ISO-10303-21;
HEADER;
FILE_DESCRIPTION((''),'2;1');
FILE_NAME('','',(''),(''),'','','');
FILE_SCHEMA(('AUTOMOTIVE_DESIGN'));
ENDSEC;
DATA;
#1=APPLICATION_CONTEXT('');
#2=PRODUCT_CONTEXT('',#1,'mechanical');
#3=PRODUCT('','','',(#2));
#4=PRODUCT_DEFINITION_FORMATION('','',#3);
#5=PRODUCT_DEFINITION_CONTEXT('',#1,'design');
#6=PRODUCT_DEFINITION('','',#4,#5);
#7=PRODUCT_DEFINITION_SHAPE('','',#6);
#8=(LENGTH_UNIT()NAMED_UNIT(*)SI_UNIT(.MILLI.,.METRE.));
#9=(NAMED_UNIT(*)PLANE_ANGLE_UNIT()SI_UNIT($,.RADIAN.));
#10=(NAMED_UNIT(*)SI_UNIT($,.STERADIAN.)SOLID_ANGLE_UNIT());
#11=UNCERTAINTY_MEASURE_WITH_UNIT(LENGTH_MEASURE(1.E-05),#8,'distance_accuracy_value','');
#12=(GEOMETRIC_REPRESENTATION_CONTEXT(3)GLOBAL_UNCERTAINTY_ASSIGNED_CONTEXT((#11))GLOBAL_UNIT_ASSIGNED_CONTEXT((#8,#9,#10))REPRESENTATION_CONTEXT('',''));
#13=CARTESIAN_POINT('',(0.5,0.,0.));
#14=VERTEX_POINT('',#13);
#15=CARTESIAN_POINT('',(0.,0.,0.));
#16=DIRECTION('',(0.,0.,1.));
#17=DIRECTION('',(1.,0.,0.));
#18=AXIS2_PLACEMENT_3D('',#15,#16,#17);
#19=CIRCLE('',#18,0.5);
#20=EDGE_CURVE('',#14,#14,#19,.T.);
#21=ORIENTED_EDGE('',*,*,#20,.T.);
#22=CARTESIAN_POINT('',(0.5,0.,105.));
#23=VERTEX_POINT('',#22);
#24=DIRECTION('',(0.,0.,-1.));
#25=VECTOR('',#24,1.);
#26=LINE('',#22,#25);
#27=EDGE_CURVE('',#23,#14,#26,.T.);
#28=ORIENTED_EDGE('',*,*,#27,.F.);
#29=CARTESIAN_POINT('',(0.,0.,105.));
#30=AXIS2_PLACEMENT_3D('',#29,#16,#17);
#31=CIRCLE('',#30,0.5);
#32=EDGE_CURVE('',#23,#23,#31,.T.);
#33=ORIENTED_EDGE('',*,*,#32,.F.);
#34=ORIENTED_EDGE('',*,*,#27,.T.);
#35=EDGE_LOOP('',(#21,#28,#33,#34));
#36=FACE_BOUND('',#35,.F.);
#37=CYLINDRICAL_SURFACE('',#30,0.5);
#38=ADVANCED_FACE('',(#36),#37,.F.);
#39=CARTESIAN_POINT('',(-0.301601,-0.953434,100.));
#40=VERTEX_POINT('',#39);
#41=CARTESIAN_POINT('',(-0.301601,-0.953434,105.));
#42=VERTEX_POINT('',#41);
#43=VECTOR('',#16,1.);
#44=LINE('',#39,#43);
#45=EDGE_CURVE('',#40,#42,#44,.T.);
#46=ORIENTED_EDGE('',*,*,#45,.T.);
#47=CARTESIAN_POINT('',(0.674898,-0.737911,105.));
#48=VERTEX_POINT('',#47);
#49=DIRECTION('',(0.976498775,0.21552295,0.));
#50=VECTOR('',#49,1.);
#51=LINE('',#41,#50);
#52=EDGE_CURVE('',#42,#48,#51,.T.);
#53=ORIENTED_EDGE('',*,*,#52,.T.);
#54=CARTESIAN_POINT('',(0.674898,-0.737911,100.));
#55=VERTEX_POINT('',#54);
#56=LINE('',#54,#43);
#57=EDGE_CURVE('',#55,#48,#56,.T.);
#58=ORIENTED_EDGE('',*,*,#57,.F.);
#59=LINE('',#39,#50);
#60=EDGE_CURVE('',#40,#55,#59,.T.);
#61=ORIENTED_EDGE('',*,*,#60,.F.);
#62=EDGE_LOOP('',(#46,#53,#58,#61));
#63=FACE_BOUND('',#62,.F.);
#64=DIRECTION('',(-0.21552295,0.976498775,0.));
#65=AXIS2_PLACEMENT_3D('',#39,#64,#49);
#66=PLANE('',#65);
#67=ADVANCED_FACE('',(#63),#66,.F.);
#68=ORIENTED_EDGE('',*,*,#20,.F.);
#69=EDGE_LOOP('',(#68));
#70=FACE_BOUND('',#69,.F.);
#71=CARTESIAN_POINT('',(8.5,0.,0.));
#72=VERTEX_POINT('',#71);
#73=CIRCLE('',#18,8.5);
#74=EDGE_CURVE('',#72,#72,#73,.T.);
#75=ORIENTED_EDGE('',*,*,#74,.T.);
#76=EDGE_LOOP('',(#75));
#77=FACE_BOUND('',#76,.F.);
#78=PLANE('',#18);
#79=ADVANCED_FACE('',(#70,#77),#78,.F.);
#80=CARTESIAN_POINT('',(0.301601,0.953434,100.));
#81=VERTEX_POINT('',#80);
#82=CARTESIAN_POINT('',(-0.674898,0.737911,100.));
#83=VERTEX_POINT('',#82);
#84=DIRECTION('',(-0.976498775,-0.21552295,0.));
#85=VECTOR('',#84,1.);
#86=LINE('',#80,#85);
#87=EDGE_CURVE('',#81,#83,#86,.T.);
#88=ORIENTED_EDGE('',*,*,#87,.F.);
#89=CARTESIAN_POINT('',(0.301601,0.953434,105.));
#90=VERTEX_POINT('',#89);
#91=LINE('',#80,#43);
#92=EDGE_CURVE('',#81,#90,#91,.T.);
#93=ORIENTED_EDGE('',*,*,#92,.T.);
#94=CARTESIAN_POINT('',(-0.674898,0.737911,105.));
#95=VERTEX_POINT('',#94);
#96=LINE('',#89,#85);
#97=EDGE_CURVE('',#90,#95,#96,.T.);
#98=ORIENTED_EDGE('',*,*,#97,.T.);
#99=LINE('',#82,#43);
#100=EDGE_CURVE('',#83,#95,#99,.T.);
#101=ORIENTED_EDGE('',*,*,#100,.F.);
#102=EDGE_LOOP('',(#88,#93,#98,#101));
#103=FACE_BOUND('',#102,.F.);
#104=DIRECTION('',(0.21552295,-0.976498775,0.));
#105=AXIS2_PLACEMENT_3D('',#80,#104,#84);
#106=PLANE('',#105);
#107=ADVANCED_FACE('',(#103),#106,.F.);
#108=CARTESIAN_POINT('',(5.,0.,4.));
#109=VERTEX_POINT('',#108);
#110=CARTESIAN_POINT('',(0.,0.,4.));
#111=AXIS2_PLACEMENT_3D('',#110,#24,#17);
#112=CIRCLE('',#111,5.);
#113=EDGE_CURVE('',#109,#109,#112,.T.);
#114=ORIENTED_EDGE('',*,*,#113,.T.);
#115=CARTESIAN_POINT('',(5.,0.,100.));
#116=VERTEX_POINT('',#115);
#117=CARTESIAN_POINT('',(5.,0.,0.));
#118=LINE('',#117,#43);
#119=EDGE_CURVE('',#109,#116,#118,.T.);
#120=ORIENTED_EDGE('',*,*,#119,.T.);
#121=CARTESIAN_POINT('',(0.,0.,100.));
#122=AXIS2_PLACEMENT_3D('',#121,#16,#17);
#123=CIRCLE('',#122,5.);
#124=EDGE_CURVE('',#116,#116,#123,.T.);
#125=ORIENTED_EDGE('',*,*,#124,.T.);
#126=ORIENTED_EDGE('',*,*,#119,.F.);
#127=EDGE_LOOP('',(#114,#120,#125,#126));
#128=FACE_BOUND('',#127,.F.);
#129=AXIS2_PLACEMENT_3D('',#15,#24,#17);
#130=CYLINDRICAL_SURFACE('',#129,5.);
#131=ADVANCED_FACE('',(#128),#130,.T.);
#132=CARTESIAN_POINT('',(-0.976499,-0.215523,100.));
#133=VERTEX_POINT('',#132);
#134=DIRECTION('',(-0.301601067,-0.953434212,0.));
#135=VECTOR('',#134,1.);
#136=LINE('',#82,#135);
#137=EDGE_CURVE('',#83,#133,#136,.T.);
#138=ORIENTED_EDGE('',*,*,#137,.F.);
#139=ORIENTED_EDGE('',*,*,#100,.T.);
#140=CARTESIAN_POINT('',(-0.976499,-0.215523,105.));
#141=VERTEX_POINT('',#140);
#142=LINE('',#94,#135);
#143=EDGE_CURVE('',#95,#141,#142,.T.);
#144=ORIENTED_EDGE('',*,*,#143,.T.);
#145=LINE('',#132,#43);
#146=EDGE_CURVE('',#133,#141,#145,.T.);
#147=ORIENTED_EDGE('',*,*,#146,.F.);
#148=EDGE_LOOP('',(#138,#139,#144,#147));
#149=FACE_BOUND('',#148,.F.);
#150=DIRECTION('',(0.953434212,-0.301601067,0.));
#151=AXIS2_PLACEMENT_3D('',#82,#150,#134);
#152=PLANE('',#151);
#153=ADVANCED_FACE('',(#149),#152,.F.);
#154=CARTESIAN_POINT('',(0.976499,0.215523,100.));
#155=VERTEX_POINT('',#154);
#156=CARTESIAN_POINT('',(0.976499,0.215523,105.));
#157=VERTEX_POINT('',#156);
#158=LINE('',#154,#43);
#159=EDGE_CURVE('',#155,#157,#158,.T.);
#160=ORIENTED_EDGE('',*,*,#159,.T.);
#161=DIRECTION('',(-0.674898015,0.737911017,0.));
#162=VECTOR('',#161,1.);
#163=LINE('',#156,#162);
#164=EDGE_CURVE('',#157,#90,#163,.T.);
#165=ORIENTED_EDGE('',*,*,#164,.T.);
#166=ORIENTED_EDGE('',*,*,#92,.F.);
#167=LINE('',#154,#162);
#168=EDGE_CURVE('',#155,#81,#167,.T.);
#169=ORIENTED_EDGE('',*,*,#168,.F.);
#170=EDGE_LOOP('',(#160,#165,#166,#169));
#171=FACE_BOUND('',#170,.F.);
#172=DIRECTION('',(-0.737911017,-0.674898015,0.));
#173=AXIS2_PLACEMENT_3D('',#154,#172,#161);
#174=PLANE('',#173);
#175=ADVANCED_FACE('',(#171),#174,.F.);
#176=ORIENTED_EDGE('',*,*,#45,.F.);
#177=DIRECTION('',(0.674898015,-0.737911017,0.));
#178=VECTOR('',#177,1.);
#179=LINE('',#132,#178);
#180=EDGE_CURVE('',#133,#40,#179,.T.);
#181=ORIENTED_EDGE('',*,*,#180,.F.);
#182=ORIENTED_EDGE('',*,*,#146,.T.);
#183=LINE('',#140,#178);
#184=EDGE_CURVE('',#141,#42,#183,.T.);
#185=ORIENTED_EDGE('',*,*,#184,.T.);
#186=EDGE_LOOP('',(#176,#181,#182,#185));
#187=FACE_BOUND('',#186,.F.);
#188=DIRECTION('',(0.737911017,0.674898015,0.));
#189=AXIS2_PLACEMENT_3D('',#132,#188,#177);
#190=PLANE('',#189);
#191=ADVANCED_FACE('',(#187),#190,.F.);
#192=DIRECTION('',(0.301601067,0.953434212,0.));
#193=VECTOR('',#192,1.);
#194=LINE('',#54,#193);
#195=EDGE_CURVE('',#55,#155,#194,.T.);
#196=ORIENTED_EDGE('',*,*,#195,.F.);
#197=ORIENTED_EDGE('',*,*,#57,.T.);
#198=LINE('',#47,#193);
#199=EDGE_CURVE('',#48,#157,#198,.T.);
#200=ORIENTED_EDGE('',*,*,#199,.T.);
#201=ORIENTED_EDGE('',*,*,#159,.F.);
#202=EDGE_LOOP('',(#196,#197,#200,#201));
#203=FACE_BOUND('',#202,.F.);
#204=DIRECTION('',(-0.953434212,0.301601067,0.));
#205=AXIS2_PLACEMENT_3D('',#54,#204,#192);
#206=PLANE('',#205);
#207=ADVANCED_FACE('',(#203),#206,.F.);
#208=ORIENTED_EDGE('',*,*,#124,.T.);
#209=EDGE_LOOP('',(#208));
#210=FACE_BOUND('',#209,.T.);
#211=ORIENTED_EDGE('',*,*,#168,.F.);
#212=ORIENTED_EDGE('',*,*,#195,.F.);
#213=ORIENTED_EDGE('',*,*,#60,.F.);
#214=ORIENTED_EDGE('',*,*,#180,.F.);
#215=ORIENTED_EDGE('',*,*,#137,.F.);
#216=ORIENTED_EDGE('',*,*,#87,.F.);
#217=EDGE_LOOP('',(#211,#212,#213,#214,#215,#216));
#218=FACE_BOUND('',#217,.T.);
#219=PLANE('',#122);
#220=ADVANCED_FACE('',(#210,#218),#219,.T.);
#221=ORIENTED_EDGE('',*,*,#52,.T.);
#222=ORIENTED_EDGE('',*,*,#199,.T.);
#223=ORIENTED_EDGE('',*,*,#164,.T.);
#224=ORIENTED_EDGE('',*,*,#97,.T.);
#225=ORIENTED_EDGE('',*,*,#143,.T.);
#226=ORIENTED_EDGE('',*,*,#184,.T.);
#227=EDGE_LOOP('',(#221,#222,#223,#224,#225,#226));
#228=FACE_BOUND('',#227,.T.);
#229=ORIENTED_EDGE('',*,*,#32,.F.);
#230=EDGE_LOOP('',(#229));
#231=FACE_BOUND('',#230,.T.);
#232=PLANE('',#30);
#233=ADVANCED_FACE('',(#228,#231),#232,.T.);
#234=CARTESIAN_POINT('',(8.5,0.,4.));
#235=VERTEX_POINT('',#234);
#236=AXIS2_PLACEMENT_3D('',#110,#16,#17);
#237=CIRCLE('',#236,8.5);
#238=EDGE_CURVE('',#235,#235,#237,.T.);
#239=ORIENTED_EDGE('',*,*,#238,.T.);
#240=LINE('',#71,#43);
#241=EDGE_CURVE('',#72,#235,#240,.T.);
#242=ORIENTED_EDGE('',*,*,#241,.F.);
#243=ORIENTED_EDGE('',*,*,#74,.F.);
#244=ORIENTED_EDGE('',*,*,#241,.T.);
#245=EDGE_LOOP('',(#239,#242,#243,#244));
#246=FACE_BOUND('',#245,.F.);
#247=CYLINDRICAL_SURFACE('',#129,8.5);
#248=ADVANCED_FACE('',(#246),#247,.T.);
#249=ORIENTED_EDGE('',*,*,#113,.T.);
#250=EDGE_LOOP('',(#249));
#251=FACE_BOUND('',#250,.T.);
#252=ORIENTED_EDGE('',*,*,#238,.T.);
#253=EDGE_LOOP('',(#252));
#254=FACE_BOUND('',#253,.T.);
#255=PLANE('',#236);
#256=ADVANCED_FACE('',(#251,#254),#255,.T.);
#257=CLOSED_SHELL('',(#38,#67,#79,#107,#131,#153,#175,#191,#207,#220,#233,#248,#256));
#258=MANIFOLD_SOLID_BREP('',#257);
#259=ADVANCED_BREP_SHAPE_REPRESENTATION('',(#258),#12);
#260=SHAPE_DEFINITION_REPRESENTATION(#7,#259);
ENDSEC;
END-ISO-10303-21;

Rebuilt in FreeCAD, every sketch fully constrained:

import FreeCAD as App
import Part
import Sketcher
from FreeCAD import Vector
Q = App.Units.Quantity

doc = App.newDocument("Part")
body = doc.addObject("PartDesign::Body", "Body")

sketch1 = doc.addObject("Sketcher::SketchObject", "Sketch")
body.addObject(sketch1)
sketch1.AttachmentSupport = (doc.XY_Plane, [""])
sketch1.MapMode = "FlatFace"
sketch1.addGeometry(Part.Circle(Vector(0, 0, 0), Vector(0, 0, 1), 8), False)
sketch1.addConstraint([
    Sketcher.Constraint("Coincident", 0, 3, -1, 1),
    Sketcher.Constraint("Diameter", 0, Q("17 mm")),
])
pad1 = doc.addObject("PartDesign::Pad", "Pad")
body.addObject(pad1)
pad1.Profile = sketch1
pad1.Length = 4

sketch2 = doc.addObject("Sketcher::SketchObject", "Sketch001")
body.addObject(sketch2)
sketch2.AttachmentSupport = (doc.XY_Plane, [""])
sketch2.MapMode = "FlatFace"
sketch2.addGeometry(Part.Circle(Vector(0, 0, 0), Vector(0, 0, 1), 5), False)
sketch2.addConstraint([
    Sketcher.Constraint("Coincident", 0, 3, -1, 1),
    Sketcher.Constraint("Diameter", 0, Q("10 mm")),
])
pad2 = doc.addObject("PartDesign::Pad", "Pad001")
body.addObject(pad2)
pad2.Profile = sketch2
pad2.Length = 100

sketch3 = doc.addObject("Sketcher::SketchObject", "Sketch002")
body.addObject(sketch3)
sketch3.AttachmentSupport = (doc.XY_Plane, [""])
sketch3.MapMode = "FlatFace"
sketch3.AttachmentOffset = App.Placement(Vector(0, 0, 100), App.Rotation())
sketch3.addGeometry([
    Part.LineSegment(Vector(0.7, -0.7, 0), Vector(1, 0.2, 0)),
    Part.LineSegment(Vector(1, 0.2, 0), Vector(0.3, 1, 0)),
    Part.LineSegment(Vector(0.3, 1, 0), Vector(-0.7, 0.7, 0)),
    Part.LineSegment(Vector(-0.7, 0.7, 0), Vector(-1, -0.2, 0)),
    Part.LineSegment(Vector(-1, -0.2, 0), Vector(-0.3, -1, 0)),
    Part.LineSegment(Vector(-0.3, -1, 0), Vector(0.7, -0.7, 0)),
], False)
sketch3.addConstraint([
    Sketcher.Constraint("Coincident", 0, 2, 1, 1),
    Sketcher.Constraint("Coincident", 1, 2, 2, 1),
    Sketcher.Constraint("Coincident", 2, 2, 3, 1),
    Sketcher.Constraint("Coincident", 3, 2, 4, 1),
    Sketcher.Constraint("Coincident", 4, 2, 5, 1),
    Sketcher.Constraint("Coincident", 5, 2, 0, 1),
    Sketcher.Constraint("Symmetric", 0, 2, 3, 2, -1, 1),
    Sketcher.Constraint("Symmetric", 1, 2, 4, 2, -1, 1),
    Sketcher.Constraint("Symmetric", 2, 2, 5, 2, -1, 1),
    Sketcher.Constraint("Equal", 0, 1),
    Sketcher.Constraint("Equal", 1, 2),
    Sketcher.Constraint("Distance", 0, Q("1 mm")),
    Sketcher.Constraint("DistanceX", -1, 1, 0, 2, Q("0.976499 mm")),
    Sketcher.Constraint("DistanceX", -1, 1, 1, 2, Q("0.301601 mm")),
    Sketcher.Constraint("DistanceX", 2, 2, 1, 2, Q("0.976499 mm")),
])
pad3 = doc.addObject("PartDesign::Pad", "Pad002")
body.addObject(pad3)
pad3.Profile = sketch3
pad3.Length = 5

sketch4 = doc.addObject("Sketcher::SketchObject", "Sketch003")
body.addObject(sketch4)
sketch4.AttachmentSupport = (doc.XY_Plane, [""])
sketch4.MapMode = "FlatFace"
sketch4.AttachmentOffset = App.Placement(Vector(0, 0, 105), App.Rotation())
sketch4.addGeometry(Part.Circle(Vector(0, 0, 0), Vector(0, 0, 1), 0.5), False)
sketch4.addConstraint([
    Sketcher.Constraint("Coincident", 0, 3, -1, 1),
    Sketcher.Constraint("Diameter", 0, Q("1 mm")),
])
pocket1 = doc.addObject("PartDesign::Pocket", "Pocket")
body.addObject(pocket1)
pocket1.Profile = sketch4
pocket1.Length = 115.3

doc.recompute()
